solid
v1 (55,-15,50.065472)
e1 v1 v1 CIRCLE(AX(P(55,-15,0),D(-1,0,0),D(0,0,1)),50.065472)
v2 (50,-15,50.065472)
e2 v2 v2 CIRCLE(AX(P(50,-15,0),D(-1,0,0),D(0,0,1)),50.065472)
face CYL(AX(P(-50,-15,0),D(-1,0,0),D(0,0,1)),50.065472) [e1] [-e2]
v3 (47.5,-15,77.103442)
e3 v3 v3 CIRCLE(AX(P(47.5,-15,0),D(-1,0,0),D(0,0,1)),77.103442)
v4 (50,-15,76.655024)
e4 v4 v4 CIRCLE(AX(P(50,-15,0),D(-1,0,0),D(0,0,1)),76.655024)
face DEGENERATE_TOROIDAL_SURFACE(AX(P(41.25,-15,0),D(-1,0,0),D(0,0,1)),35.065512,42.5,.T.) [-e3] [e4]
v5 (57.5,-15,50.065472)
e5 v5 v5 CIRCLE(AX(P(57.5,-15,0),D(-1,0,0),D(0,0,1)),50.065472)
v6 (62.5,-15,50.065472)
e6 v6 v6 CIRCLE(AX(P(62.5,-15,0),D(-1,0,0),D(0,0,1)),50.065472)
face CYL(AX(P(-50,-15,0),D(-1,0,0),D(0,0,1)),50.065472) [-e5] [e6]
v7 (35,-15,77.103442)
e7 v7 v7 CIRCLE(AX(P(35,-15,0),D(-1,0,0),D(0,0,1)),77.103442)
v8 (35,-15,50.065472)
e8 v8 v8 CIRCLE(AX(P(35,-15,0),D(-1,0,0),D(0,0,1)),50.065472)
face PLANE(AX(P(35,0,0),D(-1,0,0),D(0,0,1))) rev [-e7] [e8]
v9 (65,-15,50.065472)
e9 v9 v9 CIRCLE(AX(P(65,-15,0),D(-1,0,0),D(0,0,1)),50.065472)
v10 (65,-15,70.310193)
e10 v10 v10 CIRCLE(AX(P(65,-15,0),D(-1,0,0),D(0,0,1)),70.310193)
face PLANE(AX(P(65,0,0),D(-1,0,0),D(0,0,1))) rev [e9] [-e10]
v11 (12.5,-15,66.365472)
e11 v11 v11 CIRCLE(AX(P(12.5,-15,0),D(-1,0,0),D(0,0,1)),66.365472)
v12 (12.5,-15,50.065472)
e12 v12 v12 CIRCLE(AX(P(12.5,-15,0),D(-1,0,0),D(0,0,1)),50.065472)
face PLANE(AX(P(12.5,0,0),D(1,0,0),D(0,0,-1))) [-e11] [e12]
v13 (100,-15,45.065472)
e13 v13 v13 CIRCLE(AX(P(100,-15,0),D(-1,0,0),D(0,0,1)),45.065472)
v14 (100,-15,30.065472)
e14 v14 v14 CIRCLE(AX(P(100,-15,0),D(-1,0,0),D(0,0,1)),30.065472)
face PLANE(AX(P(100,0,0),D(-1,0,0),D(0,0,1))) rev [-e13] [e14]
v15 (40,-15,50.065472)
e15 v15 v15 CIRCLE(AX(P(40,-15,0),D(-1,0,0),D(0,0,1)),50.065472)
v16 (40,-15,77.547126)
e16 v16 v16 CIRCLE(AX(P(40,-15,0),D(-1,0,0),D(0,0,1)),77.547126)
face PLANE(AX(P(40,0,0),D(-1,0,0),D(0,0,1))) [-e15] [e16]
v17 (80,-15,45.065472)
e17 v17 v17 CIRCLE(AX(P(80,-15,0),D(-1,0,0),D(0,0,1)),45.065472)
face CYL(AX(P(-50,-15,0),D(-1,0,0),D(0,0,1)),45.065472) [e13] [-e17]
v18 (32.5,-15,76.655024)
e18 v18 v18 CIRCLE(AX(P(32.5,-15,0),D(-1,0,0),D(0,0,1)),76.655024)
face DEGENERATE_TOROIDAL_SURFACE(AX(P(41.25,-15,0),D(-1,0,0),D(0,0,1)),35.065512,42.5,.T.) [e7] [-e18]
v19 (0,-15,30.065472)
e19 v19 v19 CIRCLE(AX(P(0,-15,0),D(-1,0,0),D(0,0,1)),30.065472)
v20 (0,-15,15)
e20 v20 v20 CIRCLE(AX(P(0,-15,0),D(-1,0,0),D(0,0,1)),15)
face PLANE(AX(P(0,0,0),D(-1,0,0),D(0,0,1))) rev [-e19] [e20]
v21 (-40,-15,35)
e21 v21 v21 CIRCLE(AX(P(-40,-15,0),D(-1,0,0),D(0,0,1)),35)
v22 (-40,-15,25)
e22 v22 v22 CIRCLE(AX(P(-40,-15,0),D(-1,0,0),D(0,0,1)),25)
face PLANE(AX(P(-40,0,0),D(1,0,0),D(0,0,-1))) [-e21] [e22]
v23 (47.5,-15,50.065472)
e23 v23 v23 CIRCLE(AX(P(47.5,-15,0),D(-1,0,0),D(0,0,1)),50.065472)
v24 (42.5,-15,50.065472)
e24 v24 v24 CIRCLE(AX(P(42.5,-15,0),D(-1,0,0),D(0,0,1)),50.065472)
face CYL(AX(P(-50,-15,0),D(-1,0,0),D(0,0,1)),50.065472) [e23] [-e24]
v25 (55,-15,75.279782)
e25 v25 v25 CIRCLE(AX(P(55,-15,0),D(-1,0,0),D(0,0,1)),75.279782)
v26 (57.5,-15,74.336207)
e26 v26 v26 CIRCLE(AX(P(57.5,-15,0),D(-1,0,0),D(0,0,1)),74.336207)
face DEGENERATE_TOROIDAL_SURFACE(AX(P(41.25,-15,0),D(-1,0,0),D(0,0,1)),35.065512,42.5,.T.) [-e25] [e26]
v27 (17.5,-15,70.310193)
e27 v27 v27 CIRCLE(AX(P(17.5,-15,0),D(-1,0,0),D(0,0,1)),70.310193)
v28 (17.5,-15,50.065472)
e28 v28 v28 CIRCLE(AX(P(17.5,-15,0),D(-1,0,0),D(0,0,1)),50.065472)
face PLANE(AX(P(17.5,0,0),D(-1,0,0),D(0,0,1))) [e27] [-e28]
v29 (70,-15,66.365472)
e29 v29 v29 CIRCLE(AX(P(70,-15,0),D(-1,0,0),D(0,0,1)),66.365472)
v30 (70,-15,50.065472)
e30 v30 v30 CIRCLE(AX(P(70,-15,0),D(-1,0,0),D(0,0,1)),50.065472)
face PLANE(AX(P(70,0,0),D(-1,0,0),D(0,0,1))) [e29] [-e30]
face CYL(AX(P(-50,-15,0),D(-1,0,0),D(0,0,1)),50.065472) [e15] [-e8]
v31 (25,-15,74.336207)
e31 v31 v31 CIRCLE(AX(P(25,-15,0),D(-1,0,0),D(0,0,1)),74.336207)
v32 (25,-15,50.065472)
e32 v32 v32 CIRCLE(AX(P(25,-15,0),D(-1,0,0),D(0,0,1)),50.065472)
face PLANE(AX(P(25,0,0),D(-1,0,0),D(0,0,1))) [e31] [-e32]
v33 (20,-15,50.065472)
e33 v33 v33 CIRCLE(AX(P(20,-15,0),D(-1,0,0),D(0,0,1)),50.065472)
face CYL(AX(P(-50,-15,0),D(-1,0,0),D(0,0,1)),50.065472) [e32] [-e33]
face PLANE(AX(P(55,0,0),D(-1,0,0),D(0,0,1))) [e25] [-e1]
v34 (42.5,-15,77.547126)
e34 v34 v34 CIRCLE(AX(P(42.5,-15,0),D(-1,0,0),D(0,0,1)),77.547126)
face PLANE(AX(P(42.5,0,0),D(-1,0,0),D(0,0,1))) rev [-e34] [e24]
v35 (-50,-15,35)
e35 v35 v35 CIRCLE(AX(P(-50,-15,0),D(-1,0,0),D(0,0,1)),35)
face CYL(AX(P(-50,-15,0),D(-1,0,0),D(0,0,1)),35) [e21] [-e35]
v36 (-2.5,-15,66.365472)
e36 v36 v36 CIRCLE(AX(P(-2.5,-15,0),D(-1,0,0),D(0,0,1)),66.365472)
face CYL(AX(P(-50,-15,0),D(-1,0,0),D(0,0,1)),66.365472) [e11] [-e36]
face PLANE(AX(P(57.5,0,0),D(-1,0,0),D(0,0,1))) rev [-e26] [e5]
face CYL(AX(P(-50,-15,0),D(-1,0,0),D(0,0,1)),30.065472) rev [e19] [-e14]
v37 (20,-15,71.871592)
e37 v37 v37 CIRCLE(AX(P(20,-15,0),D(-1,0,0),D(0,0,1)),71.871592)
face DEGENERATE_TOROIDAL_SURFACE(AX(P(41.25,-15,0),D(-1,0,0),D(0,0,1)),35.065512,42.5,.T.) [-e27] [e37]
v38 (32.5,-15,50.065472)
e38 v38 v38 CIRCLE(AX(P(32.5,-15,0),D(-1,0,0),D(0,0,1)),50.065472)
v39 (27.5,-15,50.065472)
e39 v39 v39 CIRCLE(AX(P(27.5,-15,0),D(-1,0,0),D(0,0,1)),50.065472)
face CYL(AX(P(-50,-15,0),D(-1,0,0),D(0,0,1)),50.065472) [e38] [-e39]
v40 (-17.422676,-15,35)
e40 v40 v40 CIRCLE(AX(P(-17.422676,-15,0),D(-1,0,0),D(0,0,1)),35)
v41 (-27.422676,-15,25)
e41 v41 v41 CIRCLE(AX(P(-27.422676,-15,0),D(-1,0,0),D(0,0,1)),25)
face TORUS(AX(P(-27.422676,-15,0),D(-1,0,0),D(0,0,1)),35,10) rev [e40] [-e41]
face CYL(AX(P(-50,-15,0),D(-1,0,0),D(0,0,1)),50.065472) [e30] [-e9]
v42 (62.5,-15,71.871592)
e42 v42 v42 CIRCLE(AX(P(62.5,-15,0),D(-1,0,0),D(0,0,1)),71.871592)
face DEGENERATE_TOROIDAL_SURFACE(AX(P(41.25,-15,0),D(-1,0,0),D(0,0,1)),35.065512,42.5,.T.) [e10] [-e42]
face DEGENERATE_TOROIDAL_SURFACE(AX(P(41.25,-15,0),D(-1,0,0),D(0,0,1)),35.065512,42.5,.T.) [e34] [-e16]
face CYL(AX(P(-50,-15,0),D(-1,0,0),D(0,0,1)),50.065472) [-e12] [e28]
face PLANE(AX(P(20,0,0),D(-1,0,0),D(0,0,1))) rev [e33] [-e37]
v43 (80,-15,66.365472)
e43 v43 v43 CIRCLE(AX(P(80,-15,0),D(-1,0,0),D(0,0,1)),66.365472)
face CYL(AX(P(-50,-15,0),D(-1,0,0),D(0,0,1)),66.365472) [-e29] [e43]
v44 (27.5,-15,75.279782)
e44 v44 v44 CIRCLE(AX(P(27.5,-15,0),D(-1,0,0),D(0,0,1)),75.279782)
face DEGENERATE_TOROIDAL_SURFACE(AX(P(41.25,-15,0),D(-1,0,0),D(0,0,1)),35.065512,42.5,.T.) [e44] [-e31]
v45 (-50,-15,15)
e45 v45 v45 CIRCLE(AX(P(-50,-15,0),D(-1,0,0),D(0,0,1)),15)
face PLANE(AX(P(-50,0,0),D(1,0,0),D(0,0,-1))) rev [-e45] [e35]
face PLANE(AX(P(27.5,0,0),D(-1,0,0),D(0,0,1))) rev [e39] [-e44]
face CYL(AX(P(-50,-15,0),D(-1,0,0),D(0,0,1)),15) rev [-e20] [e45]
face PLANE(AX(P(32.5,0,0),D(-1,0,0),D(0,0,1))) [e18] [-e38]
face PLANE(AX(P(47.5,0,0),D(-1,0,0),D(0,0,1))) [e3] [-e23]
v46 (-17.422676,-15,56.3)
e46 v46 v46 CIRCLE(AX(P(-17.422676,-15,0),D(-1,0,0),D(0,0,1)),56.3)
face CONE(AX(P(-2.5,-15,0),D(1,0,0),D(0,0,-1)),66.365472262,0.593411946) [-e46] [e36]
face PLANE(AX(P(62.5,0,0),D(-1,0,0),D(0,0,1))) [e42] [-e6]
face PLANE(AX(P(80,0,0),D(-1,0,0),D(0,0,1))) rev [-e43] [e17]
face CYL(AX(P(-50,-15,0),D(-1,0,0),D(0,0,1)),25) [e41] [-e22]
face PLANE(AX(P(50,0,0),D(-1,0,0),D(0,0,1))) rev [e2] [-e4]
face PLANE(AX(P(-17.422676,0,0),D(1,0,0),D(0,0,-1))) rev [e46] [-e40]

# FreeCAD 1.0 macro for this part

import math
import FreeCAD as App
import Part
import Sketcher

V = App.Vector
Q = App.Units.Quantity

doc = App.newDocument("Part")
params = doc.addObject("Spreadsheet::Sheet", "Params")
for row, (alias, value) in enumerate([
    ("sketch1_radius", "10 mm"),
    ("sketch1_radius2", "42.500001 mm"),
    ("sketch1_width", "5 mm"),
    ("sketch1_width2", "15 mm"),
    ("sketch1_width3", "50 mm"),
    ("revolution_angle", "360 deg"),
], start=1):
    params.set(f"A{row}", alias)
    params.set(f"B{row}", "=" + value)
    params.setAlias(f"B{row}", alias)

body = doc.addObject("PartDesign::Body", "Body")

# Sketch on XY plane
sketch1 = doc.addObject("Sketcher::SketchObject", "Sketch")
body.addObject(sketch1)
sketch1.AttachmentSupport = (doc.XY_Plane, [""])
sketch1.MapMode = "FlatFace"
sketch1.addGeometry(Part.ArcOfCircle(Part.Circle(V(41.3, 20.1, 0), V(0, 0, 1), 42.5), math.radians(108.88), math.radians(112.48)), False)
sketch1.addGeometry(Part.LineSegment(V(25, 59.3, 0), V(25, 35.1, 0)), False)
sketch1.addGeometry(Part.LineSegment(V(25, 35.1, 0), V(20, 35.1, 0)), False)
sketch1.addGeometry(Part.LineSegment(V(20, 35.1, 0), V(20, 56.9, 0)), False)
sketch1.addGeometry(Part.ArcOfCircle(Part.Circle(V(41.2, 20.1, 0), V(0, 0, 1), 42.5), math.radians(120), math.radians(123.97)), False)
sketch1.addGeometry(Part.LineSegment(V(17.5, 55.3, 0), V(17.5, 35.1, 0)), False)
sketch1.addGeometry(Part.LineSegment(V(17.5, 35.1, 0), V(12.5, 35.1, 0)), False)
sketch1.addGeometry(Part.LineSegment(V(12.5, 35.1, 0), V(12.5, 51.4, 0)), False)
sketch1.addGeometry(Part.LineSegment(V(12.5, 51.4, 0), V(-2.5, 51.4, 0)), False)
sketch1.addGeometry(Part.LineSegment(V(-2.5, 51.4, 0), V(-17.4, 41.3, 0)), False)
sketch1.addGeometry(Part.LineSegment(V(-17.4, 41.3, 0), V(-17.4, 20, 0)), False)
sketch1.addGeometry(Part.ArcOfCircle(Part.Circle(V(-27.4, 20, 0), V(0, 0, 1), 10), math.radians(-90), math.radians(0)), False)
sketch1.addGeometry(Part.LineSegment(V(-27.4, 10, 0), V(-40, 10, 0)), False)
sketch1.addGeometry(Part.LineSegment(V(-40, 10, 0), V(-40, 20, 0)), False)
sketch1.addGeometry(Part.LineSegment(V(-40, 20, 0), V(-50, 20, 0)), False)
sketch1.addGeometry(Part.LineSegment(V(-50, 20, 0), V(-50, 0, 0)), False)
sketch1.addGeometry(Part.LineSegment(V(-50, 0, 0), V(0, 0, 0)), False)
sketch1.addGeometry(Part.LineSegment(V(0, 0, 0), V(0, 15.1, 0)), False)
sketch1.addGeometry(Part.LineSegment(V(0, 15.1, 0), V(100, 15.1, 0)), False)
sketch1.addGeometry(Part.LineSegment(V(100, 15.1, 0), V(100, 30.1, 0)), False)
sketch1.addGeometry(Part.LineSegment(V(100, 30.1, 0), V(80, 30.1, 0)), False)
sketch1.addGeometry(Part.LineSegment(V(80, 30.1, 0), V(80, 51.4, 0)), False)
sketch1.addGeometry(Part.LineSegment(V(80, 51.4, 0), V(70, 51.4, 0)), False)
sketch1.addGeometry(Part.LineSegment(V(70, 51.4, 0), V(70, 35.1, 0)), False)
sketch1.addGeometry(Part.LineSegment(V(70, 35.1, 0), V(65, 35.1, 0)), False)
sketch1.addGeometry(Part.LineSegment(V(65, 35.1, 0), V(65, 55.3, 0)), False)
sketch1.addGeometry(Part.ArcOfCircle(Part.Circle(V(41.3, 20.1, 0), V(0, 0, 1), 42.5), math.radians(56.03), math.radians(60)), False)
sketch1.addGeometry(Part.LineSegment(V(62.5, 56.9, 0), V(62.5, 35.1, 0)), False)
sketch1.addGeometry(Part.LineSegment(V(62.5, 35.1, 0), V(57.5, 35.1, 0)), False)
sketch1.addGeometry(Part.LineSegment(V(57.5, 35.1, 0), V(57.5, 59.3, 0)), False)
sketch1.addGeometry(Part.ArcOfCircle(Part.Circle(V(41.2, 20.1, 0), V(0, 0, 1), 42.5), math.radians(67.52), math.radians(71.12)), False)
sketch1.addGeometry(Part.LineSegment(V(55, 60.3, 0), V(55, 35.1, 0)), False)
sketch1.addGeometry(Part.LineSegment(V(55, 35.1, 0), V(50, 35.1, 0)), False)
sketch1.addGeometry(Part.LineSegment(V(50, 35.1, 0), V(50, 61.7, 0)), False)
sketch1.addGeometry(Part.ArcOfCircle(Part.Circle(V(41.2, 20.1, 0), V(0, 0, 1), 42.5), math.radians(78.12), math.radians(81.54)), False)
sketch1.addGeometry(Part.LineSegment(V(47.5, 62.1, 0), V(47.5, 35.1, 0)), False)
sketch1.addGeometry(Part.LineSegment(V(47.5, 35.1, 0), V(42.5, 35.1, 0)), False)
sketch1.addGeometry(Part.LineSegment(V(42.5, 35.1, 0), V(42.5, 62.5, 0)), False)
sketch1.addGeometry(Part.ArcOfCircle(Part.Circle(V(41.2, 20.1, 0), V(0, 0, 1), 42.5), math.radians(88.31), math.radians(91.69)), False)
sketch1.addGeometry(Part.LineSegment(V(40, 62.5, 0), V(40, 35.1, 0)), False)
sketch1.addGeometry(Part.LineSegment(V(40, 35.1, 0), V(35, 35.1, 0)), False)
sketch1.addGeometry(Part.LineSegment(V(35, 35.1, 0), V(35, 62.1, 0)), False)
sketch1.addGeometry(Part.ArcOfCircle(Part.Circle(V(41.3, 20.1, 0), V(0, 0, 1), 42.5), math.radians(98.46), math.radians(101.88)), False)
sketch1.addGeometry(Part.LineSegment(V(32.5, 61.7, 0), V(32.5, 35.1, 0)), False)
sketch1.addGeometry(Part.LineSegment(V(32.5, 35.1, 0), V(27.5, 35.1, 0)), False)
sketch1.addGeometry(Part.LineSegment(V(27.5, 35.1, 0), V(27.5, 60.3, 0)), False)
sketch1.addGeometry(Part.LineSegment(V(-50, -15, 0), V(100, -15, 0)), True)  # axis
sketch1.addConstraint(Sketcher.Constraint("Coincident", 0, 2, 1, 1))
sketch1.addConstraint(Sketcher.Constraint("Coincident", 1, 2, 2, 1))
sketch1.addConstraint(Sketcher.Constraint("Coincident", 2, 2, 3, 1))
sketch1.addConstraint(Sketcher.Constraint("Coincident", 3, 2, 4, 1))
sketch1.addConstraint(Sketcher.Constraint("Coincident", 4, 2, 5, 1))
sketch1.addConstraint(Sketcher.Constraint("Coincident", 5, 2, 6, 1))
sketch1.addConstraint(Sketcher.Constraint("Coincident", 6, 2, 7, 1))
sketch1.addConstraint(Sketcher.Constraint("Coincident", 7, 2, 8, 1))
sketch1.addConstraint(Sketcher.Constraint("Coincident", 8, 2, 9, 1))
sketch1.addConstraint(Sketcher.Constraint("Coincident", 9, 2, 10, 1))
sketch1.addConstraint(Sketcher.Constraint("Tangent", 10, 2, 11, 2))
sketch1.addConstraint(Sketcher.Constraint("Tangent", 11, 1, 12, 1))
sketch1.addConstraint(Sketcher.Constraint("Coincident", 12, 2, 13, 1))
sketch1.addConstraint(Sketcher.Constraint("Coincident", 13, 2, 14, 1))
sketch1.addConstraint(Sketcher.Constraint("Coincident", 14, 2, 15, 1))
sketch1.addConstraint(Sketcher.Constraint("Coincident", 15, 2, 16, 1))
sketch1.addConstraint(Sketcher.Constraint("Coincident", 16, 2, 17, 1))
sketch1.addConstraint(Sketcher.Constraint("Coincident", 17, 2, 18, 1))
sketch1.addConstraint(Sketcher.Constraint("Coincident", 18, 2, 19, 1))
sketch1.addConstraint(Sketcher.Constraint("Coincident", 19, 2, 20, 1))
sketch1.addConstraint(Sketcher.Constraint("Coincident", 20, 2, 21, 1))
sketch1.addConstraint(Sketcher.Constraint("Coincident", 21, 2, 22, 1))
sketch1.addConstraint(Sketcher.Constraint("Coincident", 22, 2, 23, 1))
sketch1.addConstraint(Sketcher.Constraint("Coincident", 23, 2, 24, 1))
sketch1.addConstraint(Sketcher.Constraint("Coincident", 24, 2, 25, 1))
sketch1.addConstraint(Sketcher.Constraint("Coincident", 25, 2, 26, 1))
sketch1.addConstraint(Sketcher.Constraint("Coincident", 26, 2, 27, 1))
sketch1.addConstraint(Sketcher.Constraint("Coincident", 27, 2, 28, 1))
sketch1.addConstraint(Sketcher.Constraint("Coincident", 28, 2, 29, 1))
sketch1.addConstraint(Sketcher.Constraint("Coincident", 29, 2, 30, 1))
sketch1.addConstraint(Sketcher.Constraint("Coincident", 30, 2, 31, 1))
sketch1.addConstraint(Sketcher.Constraint("Coincident", 31, 2, 32, 1))
sketch1.addConstraint(Sketcher.Constraint("Coincident", 32, 2, 33, 1))
sketch1.addConstraint(Sketcher.Constraint("Coincident", 33, 2, 34, 1))
sketch1.addConstraint(Sketcher.Constraint("Coincident", 34, 2, 35, 1))
sketch1.addConstraint(Sketcher.Constraint("Coincident", 35, 2, 36, 1))
sketch1.addConstraint(Sketcher.Constraint("Coincident", 36, 2, 37, 1))
sketch1.addConstraint(Sketcher.Constraint("Coincident", 37, 2, 38, 1))
sketch1.addConstraint(Sketcher.Constraint("Coincident", 38, 2, 39, 1))
sketch1.addConstraint(Sketcher.Constraint("Coincident", 39, 2, 40, 1))
sketch1.addConstraint(Sketcher.Constraint("Coincident", 40, 2, 41, 1))
sketch1.addConstraint(Sketcher.Constraint("Coincident", 41, 2, 42, 1))
sketch1.addConstraint(Sketcher.Constraint("Coincident", 42, 2, 43, 1))
sketch1.addConstraint(Sketcher.Constraint("Coincident", 43, 2, 44, 1))
sketch1.addConstraint(Sketcher.Constraint("Coincident", 44, 2, 45, 1))
sketch1.addConstraint(Sketcher.Constraint("Coincident", 45, 2, 0, 1))
sketch1.addConstraint(Sketcher.Constraint("Vertical", 1))
sketch1.addConstraint(Sketcher.Constraint("Horizontal", 2))
sketch1.addConstraint(Sketcher.Constraint("Vertical", 3))
sketch1.addConstraint(Sketcher.Constraint("Vertical", 5))
sketch1.addConstraint(Sketcher.Constraint("Horizontal", 6))
sketch1.addConstraint(Sketcher.Constraint("Vertical", 7))
sketch1.addConstraint(Sketcher.Constraint("Horizontal", 8))
sketch1.addConstraint(Sketcher.Constraint("Vertical", 10))
sketch1.addConstraint(Sketcher.Constraint("Horizontal", 12))
sketch1.addConstraint(Sketcher.Constraint("Vertical", 13))
sketch1.addConstraint(Sketcher.Constraint("Horizontal", 14))
sketch1.addConstraint(Sketcher.Constraint("Vertical", 15))
sketch1.addConstraint(Sketcher.Constraint("Horizontal", 16))
sketch1.addConstraint(Sketcher.Constraint("Vertical", 17))
sketch1.addConstraint(Sketcher.Constraint("Horizontal", 18))
sketch1.addConstraint(Sketcher.Constraint("Vertical", 19))
sketch1.addConstraint(Sketcher.Constraint("Horizontal", 20))
sketch1.addConstraint(Sketcher.Constraint("Vertical", 21))
sketch1.addConstraint(Sketcher.Constraint("Horizontal", 22))
sketch1.addConstraint(Sketcher.Constraint("Vertical", 23))
sketch1.addConstraint(Sketcher.Constraint("Horizontal", 24))
sketch1.addConstraint(Sketcher.Constraint("Vertical", 25))
sketch1.addConstraint(Sketcher.Constraint("Vertical", 27))
sketch1.addConstraint(Sketcher.Constraint("Horizontal", 28))
sketch1.addConstraint(Sketcher.Constraint("Vertical", 29))
sketch1.addConstraint(Sketcher.Constraint("Vertical", 31))
sketch1.addConstraint(Sketcher.Constraint("Horizontal", 32))
sketch1.addConstraint(Sketcher.Constraint("Vertical", 33))
sketch1.addConstraint(Sketcher.Constraint("Vertical", 35))
sketch1.addConstraint(Sketcher.Constraint("Horizontal", 36))
sketch1.addConstraint(Sketcher.Constraint("Vertical", 37))
sketch1.addConstraint(Sketcher.Constraint("Vertical", 39))
sketch1.addConstraint(Sketcher.Constraint("Horizontal", 40))
sketch1.addConstraint(Sketcher.Constraint("Vertical", 41))
sketch1.addConstraint(Sketcher.Constraint("Vertical", 43))
sketch1.addConstraint(Sketcher.Constraint("Horizontal", 44))
sketch1.addConstraint(Sketcher.Constraint("Vertical", 45))
sketch1.addConstraint(Sketcher.Constraint("Horizontal", 46))
sketch1.addConstraint(Sketcher.Constraint("Coincident", 16, 2, -1, 1))
sketch1.addConstraint(Sketcher.Constraint("Coincident", 4, 3, 0, 3))
sketch1.addConstraint(Sketcher.Constraint("Coincident", 26, 3, 0, 3))
sketch1.addConstraint(Sketcher.Constraint("Coincident", 30, 3, 0, 3))
sketch1.addConstraint(Sketcher.Constraint("Coincident", 34, 3, 0, 3))
sketch1.addConstraint(Sketcher.Constraint("Coincident", 38, 3, 0, 3))
sketch1.addConstraint(Sketcher.Constraint("Coincident", 42, 3, 0, 3))
sketch1.addConstraint(Sketcher.Constraint("Equal", 0, 4))
sketch1.addConstraint(Sketcher.Constraint("Equal", 4, 26))
sketch1.addConstraint(Sketcher.Constraint("Equal", 26, 30))
sketch1.addConstraint(Sketcher.Constraint("Equal", 30, 34))
sketch1.addConstraint(Sketcher.Constraint("Equal", 34, 38))
sketch1.addConstraint(Sketcher.Constraint("Equal", 38, 42))
sketch1.addConstraint(Sketcher.Constraint("Horizontal", 2, 2, 5, 2))
sketch1.addConstraint(Sketcher.Constraint("Horizontal", 10, 2, 13, 2))
sketch1.addConstraint(Sketcher.Constraint("Horizontal", 8, 2, 21, 2))
sketch1.addConstraint(Sketcher.Constraint("Horizontal", 6, 2, 23, 2))
sketch1.addConstraint(Sketcher.Constraint("Horizontal", 4, 2, 25, 2))
sketch1.addConstraint(Sketcher.Constraint("Horizontal", 3, 2, 26, 2))
sketch1.addConstraint(Sketcher.Constraint("Horizontal", 24, 2, 27, 2))
sketch1.addConstraint(Sketcher.Constraint("Horizontal", 0, 2, 29, 2))
sketch1.addConstraint(Sketcher.Constraint("Horizontal", 28, 2, 31, 2))
sketch1.addConstraint(Sketcher.Constraint("Horizontal", 32, 2, 35, 2))
sketch1.addConstraint(Sketcher.Constraint("Horizontal", 37, 2, 38, 2))
sketch1.addConstraint(Sketcher.Constraint("Horizontal", 36, 2, 39, 2))
sketch1.addConstraint(Sketcher.Constraint("Horizontal", 34, 2, 41, 2))
sketch1.addConstraint(Sketcher.Constraint("Horizontal", 33, 2, 42, 2))
sketch1.addConstraint(Sketcher.Constraint("Horizontal", 40, 2, 43, 2))
sketch1.addConstraint(Sketcher.Constraint("Horizontal", 30, 2, 45, 2))
sketch1.addConstraint(Sketcher.Constraint("Vertical", 15, 2, 46, 1))
sketch1.addConstraint(Sketcher.Constraint("Vertical", 19, 2, 46, 2))
sketch1.addConstraint(Sketcher.Constraint("Equal", 2, 6))
sketch1.addConstraint(Sketcher.Constraint("Equal", 14, 22))
sketch1.addConstraint(Sketcher.Constraint("Equal", 6, 24))
sketch1.addConstraint(Sketcher.Constraint("Equal", 28, 32))
sketch1.addConstraint(Sketcher.Constraint("Equal", 32, 36))
sketch1.addConstraint(Sketcher.Constraint("Equal", 22, 13))
sketch1.addConstraint(Sketcher.Constraint("Equal", 20, 15))
sketch1.addConstraint(Sketcher.Constraint("Equal", 8, 19))
sketch1.addConstraint(Sketcher.Constraint("Equal", 10, 21))
sketch1.addConstraint(Sketcher.Constraint("Radius", 11, 10.0))
sketch1.addConstraint(Sketcher.Constraint("Radius", 0, 42.500001))
sketch1.addConstraint(Sketcher.Constraint("DistanceX", 2, 2, 2, 1, 5.0))
sketch1.addConstraint(Sketcher.Constraint("DistanceX", 8, 2, 8, 1, 15.0))
sketch1.addConstraint(Sketcher.Constraint("DistanceX", 16, 1, 16, 2, 50.0))
sketch1.addConstraint(Sketcher.Constraint("DistanceX", 18, 1, 18, 2, 100.0))
sketch1.addConstraint(Sketcher.Constraint("DistanceX", 20, 2, 20, 1, 20.0))
sketch1.addConstraint(Sketcher.Constraint("Angle", 9, Q("-146 deg")))
sketch1.addConstraint(Sketcher.Constraint("Distance", 9, 18.0))
sketch1.addConstraint(Sketcher.Constraint("DistanceY", 7, 1, 7, 2, 16.3))
sketch1.addConstraint(Sketcher.Constraint("DistanceY", 10, 2, 10, 1, 21.3))
sketch1.addConstraint(Sketcher.Constraint("DistanceX", -1, 1, 0, 2, 25.0))
sketch1.addConstraint(Sketcher.Constraint("DistanceX", -1, 1, 30, 2, 55.0))
sketch1.addConstraint(Sketcher.Constraint("DistanceX", -1, 1, 38, 2, 40.0))
sketch1.addConstraint(Sketcher.Constraint("DistanceY", 46, 1, -1, 1, 15.0))
sketch1.addConstraint(Sketcher.Constraint("DistanceX", -1, 1, 4, 2, 17.5))
sketch1.addConstraint(Sketcher.Constraint("DistanceY", 3, 1, 3, 2, 21.80612))
sketch1.setExpression("Constraints[124]", "Params.sketch1_radius")
sketch1.setExpression("Constraints[125]", "Params.sketch1_radius2")
sketch1.setExpression("Constraints[126]", "Params.sketch1_width")
sketch1.setExpression("Constraints[127]", "Params.sketch1_width2")
sketch1.setExpression("Constraints[128]", "Params.sketch1_width3")
revolution = doc.addObject("PartDesign::Revolution", "Revolution")
body.addObject(revolution)
revolution.Profile = sketch1
revolution.ReferenceAxis = (sketch1, ["Axis0"])
revolution.setExpression("Angle", "Params.revolution_angle")

doc.recompute()
